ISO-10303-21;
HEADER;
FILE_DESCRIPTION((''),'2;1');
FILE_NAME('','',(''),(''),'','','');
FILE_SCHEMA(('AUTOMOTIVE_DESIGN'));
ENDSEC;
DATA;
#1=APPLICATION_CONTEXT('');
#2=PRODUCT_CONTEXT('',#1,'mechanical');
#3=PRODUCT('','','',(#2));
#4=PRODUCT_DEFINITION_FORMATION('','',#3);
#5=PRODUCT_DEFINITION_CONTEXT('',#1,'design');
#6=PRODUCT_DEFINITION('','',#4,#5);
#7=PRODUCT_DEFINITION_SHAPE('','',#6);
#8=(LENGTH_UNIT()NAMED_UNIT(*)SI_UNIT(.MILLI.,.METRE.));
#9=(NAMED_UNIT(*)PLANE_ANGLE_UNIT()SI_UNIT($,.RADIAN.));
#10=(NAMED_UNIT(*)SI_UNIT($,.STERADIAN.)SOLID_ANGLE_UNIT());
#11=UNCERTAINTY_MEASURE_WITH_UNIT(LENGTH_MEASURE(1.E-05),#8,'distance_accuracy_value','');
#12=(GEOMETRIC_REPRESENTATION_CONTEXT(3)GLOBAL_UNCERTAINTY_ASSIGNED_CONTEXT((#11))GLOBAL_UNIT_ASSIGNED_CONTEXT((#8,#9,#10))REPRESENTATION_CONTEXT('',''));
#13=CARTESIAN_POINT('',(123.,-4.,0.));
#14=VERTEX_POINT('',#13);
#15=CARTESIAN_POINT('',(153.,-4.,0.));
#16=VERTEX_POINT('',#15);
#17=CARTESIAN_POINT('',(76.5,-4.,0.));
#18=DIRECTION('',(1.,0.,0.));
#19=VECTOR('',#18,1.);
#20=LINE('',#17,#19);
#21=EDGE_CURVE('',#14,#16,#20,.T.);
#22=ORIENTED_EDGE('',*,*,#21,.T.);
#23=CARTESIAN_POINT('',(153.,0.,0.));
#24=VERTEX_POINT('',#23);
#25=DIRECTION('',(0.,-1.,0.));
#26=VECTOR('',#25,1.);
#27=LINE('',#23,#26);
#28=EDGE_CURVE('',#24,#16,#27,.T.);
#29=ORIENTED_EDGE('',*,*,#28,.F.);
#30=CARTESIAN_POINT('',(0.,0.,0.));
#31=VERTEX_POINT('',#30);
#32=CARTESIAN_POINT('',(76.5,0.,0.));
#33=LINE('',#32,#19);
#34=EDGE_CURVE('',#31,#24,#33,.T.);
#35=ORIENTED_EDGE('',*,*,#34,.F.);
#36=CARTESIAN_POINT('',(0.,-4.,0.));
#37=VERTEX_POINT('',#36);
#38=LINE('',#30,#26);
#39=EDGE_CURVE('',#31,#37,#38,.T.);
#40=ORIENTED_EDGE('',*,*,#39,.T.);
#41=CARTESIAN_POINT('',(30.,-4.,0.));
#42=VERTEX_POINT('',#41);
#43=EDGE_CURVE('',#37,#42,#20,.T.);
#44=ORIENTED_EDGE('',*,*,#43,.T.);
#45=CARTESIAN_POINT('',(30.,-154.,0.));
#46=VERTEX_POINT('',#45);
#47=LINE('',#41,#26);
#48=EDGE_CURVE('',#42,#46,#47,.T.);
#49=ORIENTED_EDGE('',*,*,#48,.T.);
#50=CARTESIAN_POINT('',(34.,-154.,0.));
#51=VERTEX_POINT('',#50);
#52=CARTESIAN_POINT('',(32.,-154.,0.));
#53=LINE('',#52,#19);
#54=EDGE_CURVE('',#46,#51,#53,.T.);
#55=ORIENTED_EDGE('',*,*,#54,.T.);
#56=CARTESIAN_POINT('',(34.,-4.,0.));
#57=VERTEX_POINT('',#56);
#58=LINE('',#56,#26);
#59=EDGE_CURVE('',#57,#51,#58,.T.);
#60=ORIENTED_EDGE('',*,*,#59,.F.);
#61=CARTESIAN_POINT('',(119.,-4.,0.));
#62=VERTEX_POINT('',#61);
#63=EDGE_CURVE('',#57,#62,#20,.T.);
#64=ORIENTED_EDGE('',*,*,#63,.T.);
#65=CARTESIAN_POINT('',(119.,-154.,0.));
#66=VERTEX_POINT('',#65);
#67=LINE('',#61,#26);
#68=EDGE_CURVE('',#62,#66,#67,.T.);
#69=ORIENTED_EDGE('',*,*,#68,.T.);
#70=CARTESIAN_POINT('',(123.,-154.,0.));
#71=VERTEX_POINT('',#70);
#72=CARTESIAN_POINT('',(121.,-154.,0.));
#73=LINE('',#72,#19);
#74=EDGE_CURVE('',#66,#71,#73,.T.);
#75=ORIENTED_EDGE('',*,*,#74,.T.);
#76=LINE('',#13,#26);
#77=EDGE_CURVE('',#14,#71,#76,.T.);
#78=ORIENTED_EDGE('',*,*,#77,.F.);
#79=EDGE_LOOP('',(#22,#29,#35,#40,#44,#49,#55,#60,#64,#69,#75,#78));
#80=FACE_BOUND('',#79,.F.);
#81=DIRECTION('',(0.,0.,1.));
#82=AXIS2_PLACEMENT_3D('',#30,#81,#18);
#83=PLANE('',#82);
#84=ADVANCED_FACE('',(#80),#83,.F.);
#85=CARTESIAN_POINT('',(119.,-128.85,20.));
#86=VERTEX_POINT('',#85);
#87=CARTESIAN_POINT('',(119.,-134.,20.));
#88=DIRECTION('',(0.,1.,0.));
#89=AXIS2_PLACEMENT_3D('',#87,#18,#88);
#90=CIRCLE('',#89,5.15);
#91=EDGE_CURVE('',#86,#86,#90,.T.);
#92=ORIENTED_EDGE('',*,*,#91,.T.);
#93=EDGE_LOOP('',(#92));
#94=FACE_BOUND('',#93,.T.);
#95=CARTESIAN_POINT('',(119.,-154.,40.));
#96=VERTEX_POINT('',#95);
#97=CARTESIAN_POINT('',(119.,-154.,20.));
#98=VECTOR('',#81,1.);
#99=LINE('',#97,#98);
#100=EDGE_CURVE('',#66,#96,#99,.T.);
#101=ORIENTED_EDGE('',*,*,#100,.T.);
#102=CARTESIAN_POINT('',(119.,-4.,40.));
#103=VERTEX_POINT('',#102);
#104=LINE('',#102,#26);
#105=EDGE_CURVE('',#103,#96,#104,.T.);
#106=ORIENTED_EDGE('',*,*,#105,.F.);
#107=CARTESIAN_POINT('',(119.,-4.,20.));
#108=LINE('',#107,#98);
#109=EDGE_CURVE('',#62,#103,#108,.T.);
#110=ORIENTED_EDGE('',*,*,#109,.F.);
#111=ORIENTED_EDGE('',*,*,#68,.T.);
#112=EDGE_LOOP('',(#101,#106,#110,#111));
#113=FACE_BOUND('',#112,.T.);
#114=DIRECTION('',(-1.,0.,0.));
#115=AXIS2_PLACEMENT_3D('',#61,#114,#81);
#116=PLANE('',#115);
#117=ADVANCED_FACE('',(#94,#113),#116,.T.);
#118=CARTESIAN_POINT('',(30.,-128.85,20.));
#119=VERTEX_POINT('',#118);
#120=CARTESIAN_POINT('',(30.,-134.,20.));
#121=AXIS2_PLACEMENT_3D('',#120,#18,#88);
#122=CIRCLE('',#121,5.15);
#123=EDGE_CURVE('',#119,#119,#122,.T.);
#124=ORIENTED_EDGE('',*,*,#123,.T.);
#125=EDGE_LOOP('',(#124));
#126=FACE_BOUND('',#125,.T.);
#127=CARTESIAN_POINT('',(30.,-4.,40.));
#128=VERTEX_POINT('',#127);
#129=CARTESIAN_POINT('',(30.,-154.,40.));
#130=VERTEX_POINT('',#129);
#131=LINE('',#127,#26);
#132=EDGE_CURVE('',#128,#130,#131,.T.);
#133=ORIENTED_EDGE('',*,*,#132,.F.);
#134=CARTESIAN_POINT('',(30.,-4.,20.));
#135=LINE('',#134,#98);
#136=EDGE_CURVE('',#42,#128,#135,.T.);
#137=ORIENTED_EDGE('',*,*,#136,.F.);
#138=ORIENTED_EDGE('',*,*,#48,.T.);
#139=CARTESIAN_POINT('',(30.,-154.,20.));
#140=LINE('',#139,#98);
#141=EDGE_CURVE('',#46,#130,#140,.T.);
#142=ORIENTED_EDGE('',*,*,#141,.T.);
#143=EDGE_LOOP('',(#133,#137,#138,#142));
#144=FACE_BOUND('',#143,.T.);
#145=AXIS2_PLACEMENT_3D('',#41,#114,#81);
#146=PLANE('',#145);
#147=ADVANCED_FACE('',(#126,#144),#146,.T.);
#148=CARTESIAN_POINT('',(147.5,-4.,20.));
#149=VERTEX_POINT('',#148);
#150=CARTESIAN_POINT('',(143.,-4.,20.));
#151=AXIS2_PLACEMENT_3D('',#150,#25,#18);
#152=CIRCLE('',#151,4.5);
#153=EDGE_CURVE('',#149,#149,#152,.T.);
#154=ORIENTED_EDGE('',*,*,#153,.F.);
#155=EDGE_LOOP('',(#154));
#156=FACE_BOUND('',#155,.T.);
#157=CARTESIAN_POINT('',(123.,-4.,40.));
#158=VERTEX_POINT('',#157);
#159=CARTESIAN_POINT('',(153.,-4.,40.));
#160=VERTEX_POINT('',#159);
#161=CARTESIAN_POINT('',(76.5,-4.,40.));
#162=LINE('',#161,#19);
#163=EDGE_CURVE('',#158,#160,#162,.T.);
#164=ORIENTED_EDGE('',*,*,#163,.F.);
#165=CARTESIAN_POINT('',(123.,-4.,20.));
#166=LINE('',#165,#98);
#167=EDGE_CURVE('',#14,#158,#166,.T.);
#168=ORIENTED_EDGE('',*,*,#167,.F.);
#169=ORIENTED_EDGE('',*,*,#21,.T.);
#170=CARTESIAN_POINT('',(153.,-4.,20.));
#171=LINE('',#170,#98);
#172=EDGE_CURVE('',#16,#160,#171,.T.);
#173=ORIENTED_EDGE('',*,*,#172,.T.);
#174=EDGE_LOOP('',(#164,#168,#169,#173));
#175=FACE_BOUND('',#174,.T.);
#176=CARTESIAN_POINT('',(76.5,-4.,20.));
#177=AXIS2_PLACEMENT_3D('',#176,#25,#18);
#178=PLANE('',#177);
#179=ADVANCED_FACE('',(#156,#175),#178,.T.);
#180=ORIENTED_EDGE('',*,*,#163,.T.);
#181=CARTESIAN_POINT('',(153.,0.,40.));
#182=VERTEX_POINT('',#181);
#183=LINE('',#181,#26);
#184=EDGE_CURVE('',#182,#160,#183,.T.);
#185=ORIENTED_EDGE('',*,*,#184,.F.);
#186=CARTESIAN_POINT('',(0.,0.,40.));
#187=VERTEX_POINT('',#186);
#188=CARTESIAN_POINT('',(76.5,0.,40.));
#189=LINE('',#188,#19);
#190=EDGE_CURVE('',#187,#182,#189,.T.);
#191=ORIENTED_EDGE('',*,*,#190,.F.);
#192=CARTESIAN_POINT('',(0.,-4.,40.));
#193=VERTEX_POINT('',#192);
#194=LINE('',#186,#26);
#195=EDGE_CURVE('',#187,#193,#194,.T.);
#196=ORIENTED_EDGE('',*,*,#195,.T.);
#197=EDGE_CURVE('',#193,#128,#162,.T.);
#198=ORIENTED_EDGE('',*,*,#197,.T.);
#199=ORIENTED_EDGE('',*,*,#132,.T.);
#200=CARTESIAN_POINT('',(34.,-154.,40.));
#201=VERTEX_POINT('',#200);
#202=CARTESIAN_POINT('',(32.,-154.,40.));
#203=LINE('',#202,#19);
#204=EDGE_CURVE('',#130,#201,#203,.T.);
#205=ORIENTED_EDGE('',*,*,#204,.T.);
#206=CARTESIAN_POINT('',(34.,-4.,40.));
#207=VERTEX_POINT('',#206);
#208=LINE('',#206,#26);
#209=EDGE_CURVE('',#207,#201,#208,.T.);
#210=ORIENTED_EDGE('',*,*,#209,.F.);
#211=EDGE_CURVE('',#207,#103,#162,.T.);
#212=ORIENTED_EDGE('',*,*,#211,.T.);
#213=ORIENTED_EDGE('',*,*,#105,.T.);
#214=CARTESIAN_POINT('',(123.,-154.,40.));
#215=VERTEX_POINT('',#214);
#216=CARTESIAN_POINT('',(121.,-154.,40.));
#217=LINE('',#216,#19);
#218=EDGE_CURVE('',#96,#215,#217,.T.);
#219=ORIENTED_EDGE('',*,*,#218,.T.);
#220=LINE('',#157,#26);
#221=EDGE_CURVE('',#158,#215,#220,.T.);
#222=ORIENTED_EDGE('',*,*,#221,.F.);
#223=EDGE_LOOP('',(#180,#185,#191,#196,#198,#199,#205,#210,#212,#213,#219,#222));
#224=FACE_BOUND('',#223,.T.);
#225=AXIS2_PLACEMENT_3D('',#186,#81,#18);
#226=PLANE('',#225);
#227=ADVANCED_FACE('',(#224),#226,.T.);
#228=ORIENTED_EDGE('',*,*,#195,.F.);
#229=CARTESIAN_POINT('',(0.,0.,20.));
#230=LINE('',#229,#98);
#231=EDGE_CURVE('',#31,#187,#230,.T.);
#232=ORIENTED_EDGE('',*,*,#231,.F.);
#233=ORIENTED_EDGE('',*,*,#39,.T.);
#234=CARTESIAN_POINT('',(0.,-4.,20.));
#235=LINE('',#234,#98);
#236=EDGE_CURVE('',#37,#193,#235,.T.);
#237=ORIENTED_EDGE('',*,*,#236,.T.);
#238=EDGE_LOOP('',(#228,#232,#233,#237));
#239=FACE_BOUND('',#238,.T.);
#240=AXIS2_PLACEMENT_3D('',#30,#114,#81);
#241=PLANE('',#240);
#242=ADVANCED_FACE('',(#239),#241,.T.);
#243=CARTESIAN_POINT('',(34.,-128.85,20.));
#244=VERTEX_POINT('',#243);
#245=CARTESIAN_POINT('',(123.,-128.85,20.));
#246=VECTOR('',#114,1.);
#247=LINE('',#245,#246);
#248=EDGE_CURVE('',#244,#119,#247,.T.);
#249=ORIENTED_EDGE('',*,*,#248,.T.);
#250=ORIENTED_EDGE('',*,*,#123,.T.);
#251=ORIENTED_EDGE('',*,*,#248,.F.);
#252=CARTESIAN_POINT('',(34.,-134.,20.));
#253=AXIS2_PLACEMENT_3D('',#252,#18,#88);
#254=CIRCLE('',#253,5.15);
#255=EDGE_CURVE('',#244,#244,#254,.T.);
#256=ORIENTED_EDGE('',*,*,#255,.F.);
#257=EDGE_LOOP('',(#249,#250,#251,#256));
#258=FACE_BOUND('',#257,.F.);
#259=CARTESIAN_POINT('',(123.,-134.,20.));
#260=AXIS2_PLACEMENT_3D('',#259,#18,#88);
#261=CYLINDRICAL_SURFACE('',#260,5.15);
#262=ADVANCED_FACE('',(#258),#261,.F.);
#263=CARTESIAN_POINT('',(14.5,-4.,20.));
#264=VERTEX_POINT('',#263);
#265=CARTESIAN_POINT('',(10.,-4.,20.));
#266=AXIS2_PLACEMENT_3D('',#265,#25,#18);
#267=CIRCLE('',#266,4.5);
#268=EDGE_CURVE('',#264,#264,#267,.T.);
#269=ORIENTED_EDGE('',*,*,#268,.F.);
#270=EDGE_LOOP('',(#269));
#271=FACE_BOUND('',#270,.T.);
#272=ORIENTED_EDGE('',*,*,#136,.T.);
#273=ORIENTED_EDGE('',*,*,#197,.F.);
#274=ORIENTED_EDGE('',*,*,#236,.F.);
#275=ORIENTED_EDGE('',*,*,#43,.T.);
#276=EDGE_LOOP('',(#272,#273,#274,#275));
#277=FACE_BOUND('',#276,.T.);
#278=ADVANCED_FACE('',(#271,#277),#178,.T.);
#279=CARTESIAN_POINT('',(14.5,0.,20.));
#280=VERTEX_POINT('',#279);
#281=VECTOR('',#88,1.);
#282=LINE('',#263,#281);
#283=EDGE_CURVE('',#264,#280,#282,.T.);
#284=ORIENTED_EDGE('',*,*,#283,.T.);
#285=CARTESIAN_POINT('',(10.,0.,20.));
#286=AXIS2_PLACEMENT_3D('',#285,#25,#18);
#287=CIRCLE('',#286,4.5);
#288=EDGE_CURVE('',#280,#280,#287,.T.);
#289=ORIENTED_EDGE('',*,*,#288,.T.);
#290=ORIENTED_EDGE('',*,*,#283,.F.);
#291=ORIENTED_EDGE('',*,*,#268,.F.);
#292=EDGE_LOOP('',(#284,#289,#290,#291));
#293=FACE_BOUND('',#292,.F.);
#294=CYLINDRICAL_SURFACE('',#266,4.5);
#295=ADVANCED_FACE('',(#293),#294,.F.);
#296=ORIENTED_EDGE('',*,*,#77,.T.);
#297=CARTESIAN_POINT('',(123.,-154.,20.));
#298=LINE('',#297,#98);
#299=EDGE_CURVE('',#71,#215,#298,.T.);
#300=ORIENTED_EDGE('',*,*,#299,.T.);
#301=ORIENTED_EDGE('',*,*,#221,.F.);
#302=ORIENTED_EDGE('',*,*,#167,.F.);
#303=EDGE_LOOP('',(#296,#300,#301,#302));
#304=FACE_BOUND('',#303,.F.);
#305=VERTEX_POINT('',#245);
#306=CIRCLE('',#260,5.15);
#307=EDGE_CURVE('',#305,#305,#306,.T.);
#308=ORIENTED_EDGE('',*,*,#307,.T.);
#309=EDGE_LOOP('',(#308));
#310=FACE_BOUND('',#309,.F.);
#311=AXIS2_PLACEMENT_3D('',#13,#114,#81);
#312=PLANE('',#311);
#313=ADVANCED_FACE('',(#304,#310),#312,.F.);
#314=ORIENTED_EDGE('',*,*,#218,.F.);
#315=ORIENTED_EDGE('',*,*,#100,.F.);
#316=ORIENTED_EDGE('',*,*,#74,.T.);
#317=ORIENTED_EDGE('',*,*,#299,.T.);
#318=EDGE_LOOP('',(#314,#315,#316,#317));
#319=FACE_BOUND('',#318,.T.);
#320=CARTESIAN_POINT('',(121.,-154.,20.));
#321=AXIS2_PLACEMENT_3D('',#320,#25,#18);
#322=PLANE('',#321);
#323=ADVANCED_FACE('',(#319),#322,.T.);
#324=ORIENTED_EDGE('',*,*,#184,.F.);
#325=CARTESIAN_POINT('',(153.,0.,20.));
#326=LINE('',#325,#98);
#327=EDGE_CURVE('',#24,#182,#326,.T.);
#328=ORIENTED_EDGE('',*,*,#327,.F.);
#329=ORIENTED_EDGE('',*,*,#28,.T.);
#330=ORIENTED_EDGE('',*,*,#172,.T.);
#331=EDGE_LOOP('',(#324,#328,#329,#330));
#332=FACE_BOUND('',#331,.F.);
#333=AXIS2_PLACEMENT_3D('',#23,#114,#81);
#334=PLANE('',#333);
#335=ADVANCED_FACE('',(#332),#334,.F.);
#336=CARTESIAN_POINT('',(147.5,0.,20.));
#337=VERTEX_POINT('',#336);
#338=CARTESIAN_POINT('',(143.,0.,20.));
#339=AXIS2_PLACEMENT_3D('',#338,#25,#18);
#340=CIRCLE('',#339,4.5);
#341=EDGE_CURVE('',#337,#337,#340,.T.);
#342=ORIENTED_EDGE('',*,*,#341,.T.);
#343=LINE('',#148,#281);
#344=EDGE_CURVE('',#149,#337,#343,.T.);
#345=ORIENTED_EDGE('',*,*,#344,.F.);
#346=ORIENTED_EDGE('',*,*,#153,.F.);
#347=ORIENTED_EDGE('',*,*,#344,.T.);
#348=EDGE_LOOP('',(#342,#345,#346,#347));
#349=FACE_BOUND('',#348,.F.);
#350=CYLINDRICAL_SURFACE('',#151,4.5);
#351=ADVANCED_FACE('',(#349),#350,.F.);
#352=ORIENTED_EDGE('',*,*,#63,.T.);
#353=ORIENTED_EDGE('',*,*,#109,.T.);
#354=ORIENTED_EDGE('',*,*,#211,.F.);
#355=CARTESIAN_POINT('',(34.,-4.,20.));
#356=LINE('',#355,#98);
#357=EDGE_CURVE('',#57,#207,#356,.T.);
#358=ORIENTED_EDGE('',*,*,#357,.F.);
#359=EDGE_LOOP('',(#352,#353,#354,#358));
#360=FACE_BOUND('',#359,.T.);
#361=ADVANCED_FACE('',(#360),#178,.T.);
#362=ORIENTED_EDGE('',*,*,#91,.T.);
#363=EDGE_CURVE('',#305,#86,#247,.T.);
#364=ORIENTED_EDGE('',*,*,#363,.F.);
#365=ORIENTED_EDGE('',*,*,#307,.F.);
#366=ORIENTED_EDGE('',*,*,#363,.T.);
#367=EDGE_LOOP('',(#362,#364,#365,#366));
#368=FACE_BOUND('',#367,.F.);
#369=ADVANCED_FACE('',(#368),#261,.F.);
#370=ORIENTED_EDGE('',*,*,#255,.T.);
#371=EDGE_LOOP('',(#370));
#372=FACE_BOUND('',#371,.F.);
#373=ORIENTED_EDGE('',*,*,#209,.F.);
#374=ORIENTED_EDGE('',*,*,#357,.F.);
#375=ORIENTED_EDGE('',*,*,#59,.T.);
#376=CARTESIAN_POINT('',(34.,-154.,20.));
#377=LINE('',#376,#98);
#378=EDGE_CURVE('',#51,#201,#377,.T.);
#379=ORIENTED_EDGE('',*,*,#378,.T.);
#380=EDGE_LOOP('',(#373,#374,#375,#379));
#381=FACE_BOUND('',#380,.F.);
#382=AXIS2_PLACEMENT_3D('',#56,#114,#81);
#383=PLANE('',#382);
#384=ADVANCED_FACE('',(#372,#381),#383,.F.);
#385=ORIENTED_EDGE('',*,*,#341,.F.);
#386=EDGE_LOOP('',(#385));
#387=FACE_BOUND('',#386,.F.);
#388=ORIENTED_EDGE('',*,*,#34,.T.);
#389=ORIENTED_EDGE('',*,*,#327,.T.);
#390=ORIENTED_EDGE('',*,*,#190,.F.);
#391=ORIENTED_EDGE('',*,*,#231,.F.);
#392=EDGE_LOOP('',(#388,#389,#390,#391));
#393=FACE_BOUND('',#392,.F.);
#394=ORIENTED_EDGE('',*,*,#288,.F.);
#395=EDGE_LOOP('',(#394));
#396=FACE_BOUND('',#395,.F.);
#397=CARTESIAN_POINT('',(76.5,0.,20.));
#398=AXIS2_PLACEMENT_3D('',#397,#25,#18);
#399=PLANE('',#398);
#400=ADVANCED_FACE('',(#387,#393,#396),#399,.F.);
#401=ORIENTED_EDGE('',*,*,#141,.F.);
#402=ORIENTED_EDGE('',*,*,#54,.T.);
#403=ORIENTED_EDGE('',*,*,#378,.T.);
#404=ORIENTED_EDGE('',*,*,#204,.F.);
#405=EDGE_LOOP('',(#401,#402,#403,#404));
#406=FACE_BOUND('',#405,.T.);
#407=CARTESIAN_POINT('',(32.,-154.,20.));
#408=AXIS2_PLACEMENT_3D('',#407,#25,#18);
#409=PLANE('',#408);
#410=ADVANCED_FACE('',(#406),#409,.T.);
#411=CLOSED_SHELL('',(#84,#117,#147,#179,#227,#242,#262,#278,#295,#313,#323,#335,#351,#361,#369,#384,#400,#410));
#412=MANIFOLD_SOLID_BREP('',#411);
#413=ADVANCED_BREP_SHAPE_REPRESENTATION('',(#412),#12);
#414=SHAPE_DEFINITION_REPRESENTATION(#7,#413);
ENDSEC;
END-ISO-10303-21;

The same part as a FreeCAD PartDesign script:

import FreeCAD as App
import Part
import Sketcher

V = App.Vector
Q = App.Units.Quantity

doc = App.newDocument("Part")
body = doc.addObject("PartDesign::Body", "Body")

sketch1 = body.newObject("Sketcher::SketchObject", "Sketch")
sketch1.AttachmentSupport = (doc.getObject("XZ_Plane"), [""])
sketch1.MapMode = "FlatFace"
sketch1.addGeometry([
    Part.LineSegment(V(0, 40, 0), V(0, 0, 0)),
    Part.LineSegment(V(0, 0, 0), V(153, 0, 0)),
    Part.LineSegment(V(153, 0, 0), V(153, 40, 0)),
    Part.LineSegment(V(153, 40, 0), V(0, 40, 0)),
], False)
sketch1.addConstraint([
    Sketcher.Constraint("Coincident", 0, 2, 1, 1),
    Sketcher.Constraint("Coincident", 1, 2, 2, 1),
    Sketcher.Constraint("Coincident", 2, 2, 3, 1),
    Sketcher.Constraint("Coincident", 3, 2, 0, 1),
    Sketcher.Constraint("Vertical", 0),
    Sketcher.Constraint("Horizontal", 1),
    Sketcher.Constraint("Vertical", 2),
    Sketcher.Constraint("Horizontal", 3),
    Sketcher.Constraint("Coincident", 0, 2, -1, 1),
    Sketcher.Constraint("DistanceX", 1, 1, 1, 2, Q("153 mm")),
    Sketcher.Constraint("DistanceY", 0, 2, 0, 1, Q("40 mm")),
])
pad1 = body.newObject("PartDesign::Pad", "Pad")
pad1.Profile = sketch1
pad1.Length = 4

sketch2 = body.newObject("Sketcher::SketchObject", "Sketch001")
sketch2.AttachmentSupport = (doc.getObject("XZ_Plane"), [""])
sketch2.MapMode = "FlatFace"
sketch2.AttachmentOffset = App.Placement(V(0, 0, 4), App.Rotation())
sketch2.addGeometry([
    Part.LineSegment(V(30, 40, 0), V(30, 0, 0)),
    Part.LineSegment(V(30, 0, 0), V(34, 0, 0)),
    Part.LineSegment(V(34, 0, 0), V(34, 40, 0)),
    Part.LineSegment(V(34, 40, 0), V(30, 40, 0)),
    Part.LineSegment(V(119, 40, 0), V(119, 0, 0)),
    Part.LineSegment(V(119, 0, 0), V(123, 0, 0)),
    Part.LineSegment(V(123, 0, 0), V(123, 40, 0)),
    Part.LineSegment(V(123, 40, 0), V(119, 40, 0)),
], False)
sketch2.addConstraint([
    Sketcher.Constraint("Coincident", 0, 2, 1, 1),
    Sketcher.Constraint("Coincident", 1, 2, 2, 1),
    Sketcher.Constraint("Coincident", 2, 2, 3, 1),
    Sketcher.Constraint("Coincident", 3, 2, 0, 1),
    Sketcher.Constraint("Coincident", 4, 2, 5, 1),
    Sketcher.Constraint("Coincident", 5, 2, 6, 1),
    Sketcher.Constraint("Coincident", 6, 2, 7, 1),
    Sketcher.Constraint("Coincident", 7, 2, 4, 1),
    Sketcher.Constraint("Vertical", 0),
    Sketcher.Constraint("Horizontal", 1),
    Sketcher.Constraint("Vertical", 2),
    Sketcher.Constraint("Horizontal", 3),
    Sketcher.Constraint("Vertical", 4),
    Sketcher.Constraint("Horizontal", 5),
    Sketcher.Constraint("Vertical", 6),
    Sketcher.Constraint("Horizontal", 7),
    Sketcher.Constraint("PointOnObject", 0, 2, -1),
    Sketcher.Constraint("PointOnObject", 4, 2, -1),
    Sketcher.Constraint("Horizontal", 3, 2, 6, 2),
    Sketcher.Constraint("Equal", 3, 5),
    Sketcher.Constraint("DistanceX", 1, 1, 1, 2, Q("4 mm")),
    Sketcher.Constraint("DistanceY", 0, 2, 0, 1, Q("40 mm")),
    Sketcher.Constraint("DistanceX", -1, 1, 0, 2, Q("30 mm")),
    Sketcher.Constraint("DistanceX", -1, 1, 4, 2, Q("119 mm")),
])
pad2 = body.newObject("PartDesign::Pad", "Pad001")
pad2.Profile = sketch2
pad2.Length = 150

sketch3 = body.newObject("Sketcher::SketchObject", "Sketch002")
sketch3.AttachmentSupport = (doc.getObject("XZ_Plane"), [""])
sketch3.MapMode = "FlatFace"
sketch3.AttachmentOffset = App.Placement(V(0, 0, 4), App.Rotation())
sketch3.addGeometry([
    Part.Circle(V(143, 20, 0), V(0, 0, 1), 4.5),
    Part.Circle(V(10, 20, 0), V(0, 0, 1), 4.5),
], False)
sketch3.addConstraint([
    Sketcher.Constraint("Equal", 0, 1),
    Sketcher.Constraint("Horizontal", 0, 3, 1, 3),
    Sketcher.Constraint("Diameter", 0, Q("9 mm")),
    Sketcher.Constraint("DistanceX", -1, 1, 0, 3, Q("143 mm")),
    Sketcher.Constraint("DistanceY", -1, 1, 0, 3, Q("20 mm")),
    Sketcher.Constraint("DistanceX", -1, 1, 1, 3, Q("10 mm")),
])
pocket1 = body.newObject("PartDesign::Pocket", "Pocket")
pocket1.Profile = sketch3
pocket1.Length = 25

sketch4 = body.newObject("Sketcher::SketchObject", "Sketch003")
sketch4.AttachmentSupport = (doc.getObject("YZ_Plane"), [""])
sketch4.MapMode = "FlatFace"
sketch4.AttachmentOffset = App.Placement(V(0, 0, 123), App.Rotation())
sketch4.addGeometry(Part.Circle(V(-134, 20, 0), V(0, 0, 1), 5), False)
sketch4.addConstraint([
    Sketcher.Constraint("Diameter", 0, Q("10.3 mm")),
    Sketcher.Constraint("DistanceX", 0, 3, -1, 1, Q("134 mm")),
    Sketcher.Constraint("DistanceY", -1, 1, 0, 3, Q("20 mm")),
])
pocket2 = body.newObject("PartDesign::Pocket", "Pocket001")
pocket2.Profile = sketch4
pocket2.Type = "ThroughAll"

doc.recompute()
